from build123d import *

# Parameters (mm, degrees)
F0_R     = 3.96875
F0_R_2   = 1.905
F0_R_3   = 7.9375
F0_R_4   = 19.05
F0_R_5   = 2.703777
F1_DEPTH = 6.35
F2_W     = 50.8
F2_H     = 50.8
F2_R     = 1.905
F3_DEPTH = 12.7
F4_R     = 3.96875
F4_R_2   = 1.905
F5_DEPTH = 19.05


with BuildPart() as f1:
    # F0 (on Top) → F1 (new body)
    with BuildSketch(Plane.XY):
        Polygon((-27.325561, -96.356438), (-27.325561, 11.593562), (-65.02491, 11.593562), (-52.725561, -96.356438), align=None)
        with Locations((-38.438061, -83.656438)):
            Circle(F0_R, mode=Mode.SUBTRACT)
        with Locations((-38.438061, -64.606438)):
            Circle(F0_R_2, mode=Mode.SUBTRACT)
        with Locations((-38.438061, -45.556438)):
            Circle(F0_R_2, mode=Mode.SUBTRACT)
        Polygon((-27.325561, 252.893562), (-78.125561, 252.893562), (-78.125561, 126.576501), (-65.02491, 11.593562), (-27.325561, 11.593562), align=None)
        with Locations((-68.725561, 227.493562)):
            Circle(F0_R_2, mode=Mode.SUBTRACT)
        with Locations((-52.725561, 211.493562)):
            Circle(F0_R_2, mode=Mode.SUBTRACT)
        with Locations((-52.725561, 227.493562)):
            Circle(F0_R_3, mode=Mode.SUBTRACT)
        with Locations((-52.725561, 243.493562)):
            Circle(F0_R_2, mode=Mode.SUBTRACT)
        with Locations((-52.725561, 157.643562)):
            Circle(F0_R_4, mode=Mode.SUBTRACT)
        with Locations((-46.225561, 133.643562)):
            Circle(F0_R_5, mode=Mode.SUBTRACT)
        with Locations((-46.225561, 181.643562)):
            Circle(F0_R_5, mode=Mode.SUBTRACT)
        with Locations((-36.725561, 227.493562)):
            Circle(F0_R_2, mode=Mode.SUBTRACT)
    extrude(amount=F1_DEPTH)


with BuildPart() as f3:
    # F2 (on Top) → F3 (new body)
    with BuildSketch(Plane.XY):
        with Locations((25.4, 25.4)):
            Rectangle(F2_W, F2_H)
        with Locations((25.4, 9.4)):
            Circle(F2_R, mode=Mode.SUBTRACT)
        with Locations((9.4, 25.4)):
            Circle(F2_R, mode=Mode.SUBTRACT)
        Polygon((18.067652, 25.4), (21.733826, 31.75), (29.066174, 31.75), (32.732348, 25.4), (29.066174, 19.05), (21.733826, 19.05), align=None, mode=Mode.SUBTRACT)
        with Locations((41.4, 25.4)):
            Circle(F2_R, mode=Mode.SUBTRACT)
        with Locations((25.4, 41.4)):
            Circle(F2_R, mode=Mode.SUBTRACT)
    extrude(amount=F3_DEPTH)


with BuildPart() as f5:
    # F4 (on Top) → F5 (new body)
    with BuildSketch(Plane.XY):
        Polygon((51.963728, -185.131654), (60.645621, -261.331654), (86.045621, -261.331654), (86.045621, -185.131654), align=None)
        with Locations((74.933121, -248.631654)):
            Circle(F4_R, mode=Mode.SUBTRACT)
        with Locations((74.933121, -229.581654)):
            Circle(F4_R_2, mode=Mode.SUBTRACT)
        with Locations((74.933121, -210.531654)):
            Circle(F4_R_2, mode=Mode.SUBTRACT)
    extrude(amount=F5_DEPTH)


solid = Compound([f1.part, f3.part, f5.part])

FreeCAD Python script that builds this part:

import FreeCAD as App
import Part
import Sketcher

V = App.Vector
Q = App.Units.Quantity


def add_polygon(sketch, points):
    """Adds a closed chain of lines whose ends are joined by coincident constraints."""
    first, n = sketch.GeometryCount, len(points)
    for a, b in zip(points, points[1:] + points[:1]):
        sketch.addGeometry(Part.LineSegment(App.Vector(*a, 0), App.Vector(*b, 0)), False)
    for i in range(n):
        sketch.addConstraint(Sketcher.Constraint("Coincident", first + i, 2, first + (i + 1) % n, 1))

doc = App.newDocument("Part")
params = doc.addObject("Spreadsheet::Sheet", "Params")
for row, (alias, value) in enumerate([
    ("sketch1_diameter", "1.5 in"),
    ("sketch1_diameter2", "0.15 in"),
    ("sketch1_width", "2 in"),
    ("sketch1_width2", "1 in"),
    ("sketch1_diameter3", "0.3125 in"),
    ("pad1_length", "0.25 in"),
    ("sketch2_diameter", "0.15 in"),
    ("sketch2_width", "2 in"),
    ("pad2_length", "0.5 in"),
    ("sketch3_diameter", "0.15 in"),
    ("sketch3_width", "1 in"),
    ("sketch3_height", "3 in"),
    ("sketch3_diameter2", "0.3125 in"),
    ("pad3_length", "0.75 in"),
], start=1):
    params.set(f"A{row}", alias)
    params.set(f"B{row}", "=" + value)
    params.setAlias(f"B{row}", alias)

body = doc.addObject("PartDesign::Body", "Body")

sketch1 = body.newObject("Sketcher::SketchObject", "Sketch")
sketch1.AttachmentSupport = (doc.getObject("XY_Plane"), [""])
sketch1.MapMode = "FlatFace"
add_polygon(sketch1, [(-27.3, -96.4), (-27.3, 252.9), (-78.1, 252.9), (-78.1, 126.6), (-65, 11.6), (-52.7, -96.4)])
sketch1.addGeometry(Part.Circle(V(-38.4, -83.7, 0), V(0, 0, 1), 4), False)
sketch1.addGeometry(Part.Circle(V(-38.4, -64.6, 0), V(0, 0, 1), 1.9), False)
sketch1.addGeometry(Part.Circle(V(-38.4, -45.6, 0), V(0, 0, 1), 1.9), False)
sketch1.addGeometry(Part.Circle(V(-68.7, 227.5, 0), V(0, 0, 1), 1.9), False)
sketch1.addGeometry(Part.Circle(V(-52.7, 157.6, 0), V(0, 0, 1), 19.1), False)
sketch1.addGeometry(Part.Circle(V(-46.2, 133.6, 0), V(0, 0, 1), 2.7), False)
sketch1.addGeometry(Part.Circle(V(-46.2, 181.6, 0), V(0, 0, 1), 2.7), False)
sketch1.addGeometry(Part.Circle(V(-52.7, 211.5, 0), V(0, 0, 1), 1.9), False)
sketch1.addGeometry(Part.Circle(V(-52.7, 227.5, 0), V(0, 0, 1), 7.9), False)
sketch1.addGeometry(Part.Circle(V(-52.7, 243.5, 0), V(0, 0, 1), 1.9), False)
sketch1.addGeometry(Part.Circle(V(-36.7, 227.5, 0), V(0, 0, 1), 1.9), False)
sketch1.addConstraint(Sketcher.Constraint("Vertical", 0))
sketch1.addConstraint(Sketcher.Constraint("Horizontal", 1))
sketch1.addConstraint(Sketcher.Constraint("Vertical", 2))
sketch1.addConstraint(Sketcher.Constraint("Horizontal", 5))
sketch1.addConstraint(Sketcher.Constraint("Equal", 7, 8))
sketch1.addConstraint(Sketcher.Constraint("Equal", 8, 9))
sketch1.addConstraint(Sketcher.Constraint("Equal", 11, 12))
sketch1.addConstraint(Sketcher.Constraint("Equal", 9, 13))
sketch1.addConstraint(Sketcher.Constraint("Equal", 13, 15))
sketch1.addConstraint(Sketcher.Constraint("Equal", 15, 16))
sketch1.addConstraint(Sketcher.Constraint("Parallel", 3, 4))
sketch1.addConstraint(Sketcher.Constraint("Horizontal", 9, 3, 14, 3))
sketch1.addConstraint(Sketcher.Constraint("Horizontal", 14, 3, 16, 3))
sketch1.addConstraint(Sketcher.Constraint("Vertical", 6, 3, 7, 3))
sketch1.addConstraint(Sketcher.Constraint("Vertical", 7, 3, 8, 3))
sketch1.addConstraint(Sketcher.Constraint("Vertical", 11, 3, 12, 3))
sketch1.addConstraint(Sketcher.Constraint("Vertical", 10, 3, 13, 3))
sketch1.addConstraint(Sketcher.Constraint("Vertical", 13, 3, 14, 3))
sketch1.addConstraint(Sketcher.Constraint("Vertical", 14, 3, 15, 3))
sketch1.addConstraint(Sketcher.Constraint("Vertical", 15, 3, 4, 2))
sketch1.addConstraint(Sketcher.Constraint("Diameter", 10, Q("1.5 in")))
sketch1.addConstraint(Sketcher.Constraint("Diameter", 7, Q("0.15 in")))
sketch1.addConstraint(Sketcher.Constraint("DistanceX", 1, 2, 1, 1, Q("2 in")))
sketch1.addConstraint(Sketcher.Constraint("DistanceX", 5, 1, 5, 2, Q("1 in")))
sketch1.addConstraint(Sketcher.Constraint("Diameter", 6, Q("0.3125 in")))
sketch1.addConstraint(Sketcher.Constraint("Diameter", 14, Q("0.625 in")))
sketch1.addConstraint(Sketcher.Constraint("DistanceY", 8, 3, 10, 3, Q("8 in")))
sketch1.addConstraint(Sketcher.Constraint("DistanceY", 16, 3, 0, 2, Q("1 in")))
sketch1.addConstraint(Sketcher.Constraint("DistanceY", 7, 3, 3, 2, Q("3 in")))
sketch1.addConstraint(Sketcher.Constraint("DistanceY", 4, 2, 8, 3, Q("2 in")))
sketch1.addConstraint(Sketcher.Constraint("DistanceY", 0, 1, 0, 2, Q("13.75 in")))
sketch1.addConstraint(Sketcher.Constraint("Angle", 3, Q("-83.5 deg")))
sketch1.addConstraint(Sketcher.Constraint("DistanceY", 6, 3, 8, 3, Q("1.5 in")))
sketch1.addConstraint(Sketcher.Constraint("DistanceY", 7, 3, 9, 3, Q("11.5 in")))
sketch1.addConstraint(Sketcher.Constraint("DistanceX", 10, 3, 8, 3, Q("0.5625 in")))
sketch1.addConstraint(Sketcher.Constraint("Diameter", 11, 5.407554))
sketch1.addConstraint(Sketcher.Constraint("DistanceY", -1, 1, 2, 2, 126.576501))
sketch1.addConstraint(Sketcher.Constraint("DistanceX", 9, 3, 8, 3, 30.2875))
sketch1.addConstraint(Sketcher.Constraint("DistanceX", 10, 3, 11, 3, 6.5))
sketch1.addConstraint(Sketcher.Constraint("DistanceY", 11, 3, 10, 3, 24.0))
sketch1.addConstraint(Sketcher.Constraint("DistanceY", 10, 3, 12, 3, 24.0))
sketch1.addConstraint(Sketcher.Constraint("DistanceY", 13, 3, 9, 3, 16.0))
sketch1.addConstraint(Sketcher.Constraint("DistanceY", 14, 3, 15, 3, 16.0))
sketch1.addConstraint(Sketcher.Constraint("DistanceX", 14, 3, 16, 3, 16.0))
sketch1.addConstraint(Sketcher.Constraint("DistanceX", 6, 3, -1, 1, 38.438061))
sketch1.setExpression("Constraints[26]", "Params.sketch1_diameter")
sketch1.setExpression("Constraints[27]", "Params.sketch1_diameter2")
sketch1.setExpression("Constraints[28]", "Params.sketch1_width")
sketch1.setExpression("Constraints[29]", "Params.sketch1_width2")
sketch1.setExpression("Constraints[30]", "Params.sketch1_diameter3")
pad1 = body.newObject("PartDesign::Pad", "Pad")
pad1.Profile = sketch1
pad1.setExpression("Length", "Params.pad1_length")
body2 = doc.addObject("PartDesign::Body", "Body001")

sketch2 = body2.newObject("Sketcher::SketchObject", "Sketch001")
sketch2.AttachmentSupport = (doc.getObject("XY_Plane001"), [""])
sketch2.MapMode = "FlatFace"
add_polygon(sketch2, [(0, 50.8), (0, 0), (50.8, 0), (50.8, 50.8)])
sketch2.addGeometry(Part.Circle(V(25.4, 9.4, 0), V(0, 0, 1), 1.9), False)
sketch2.addGeometry(Part.Circle(V(9.4, 25.4, 0), V(0, 0, 1), 1.9), False)
sketch2.addGeometry(Part.Circle(V(41.4, 25.4, 0), V(0, 0, 1), 1.9), False)
sketch2.addGeometry(Part.Circle(V(25.4, 41.4, 0), V(0, 0, 1), 1.9), False)
add_polygon(sketch2, [(21.7, 19.1), (18.1, 25.4), (21.7, 31.8), (29.1, 31.8), (32.7, 25.4), (29.1, 19.1)])
sketch2.addConstraint(Sketcher.Constraint("Vertical", 0))
sketch2.addConstraint(Sketcher.Constraint("Horizontal", 1))
sketch2.addConstraint(Sketcher.Constraint("Vertical", 2))
sketch2.addConstraint(Sketcher.Constraint("Horizontal", 3))
sketch2.addConstraint(Sketcher.Constraint("Horizontal", 10))
sketch2.addConstraint(Sketcher.Constraint("Horizontal", 13))
sketch2.addConstraint(Sketcher.Constraint("Coincident", 0, 2, -1, 1))
sketch2.addConstraint(Sketcher.Constraint("Equal", 4, 5))
sketch2.addConstraint(Sketcher.Constraint("Equal", 5, 6))
sketch2.addConstraint(Sketcher.Constraint("Equal", 6, 7))
sketch2.addConstraint(Sketcher.Constraint("Parallel", 8, 11))
sketch2.addConstraint(Sketcher.Constraint("Parallel", 9, 12))
sketch2.addConstraint(Sketcher.Constraint("Horizontal", 5, 3, 6, 3))
sketch2.addConstraint(Sketcher.Constraint("Horizontal", 6, 3, 8, 2))
sketch2.addConstraint(Sketcher.Constraint("Horizontal", 8, 2, 11, 2))
sketch2.addConstraint(Sketcher.Constraint("Vertical", 4, 3, 7, 3))
sketch2.addConstraint(Sketcher.Constraint("Vertical", 10, 2, 12, 2))
sketch2.addConstraint(Sketcher.Constraint("Vertical", 9, 2, 13, 2))
sketch2.addConstraint(Sketcher.Constraint("Equal", 3, 0))
sketch2.addConstraint(Sketcher.Constraint("Diameter", 4, Q("0.15 in")))
sketch2.addConstraint(Sketcher.Constraint("DistanceX", 1, 1, 1, 2, Q("2 in")))
sketch2.addConstraint(Sketcher.Constraint("DistanceX", -1, 1, 4, 3, Q("1 in")))
sketch2.addConstraint(Sketcher.Constraint("DistanceY", -1, 1, 5, 3, Q("1 in")))
sketch2.addConstraint(Sketcher.Constraint("Angle", 8, Q("119.999999 deg")))
sketch2.addConstraint(Sketcher.Constraint("DistanceY", 12, 2, 10, 2, Q("0.5 in")))
sketch2.addConstraint(Sketcher.Constraint("DistanceY", -1, 1, 4, 3, 9.4))
sketch2.addConstraint(Sketcher.Constraint("DistanceX", -1, 1, 5, 3, 9.4))
sketch2.addConstraint(Sketcher.Constraint("DistanceX", -1, 1, 6, 3, 41.4))
sketch2.addConstraint(Sketcher.Constraint("DistanceY", -1, 1, 7, 3, 41.4))
sketch2.addConstraint(Sketcher.Constraint("DistanceX", 10, 1, 10, 2, 7.332348))
sketch2.addConstraint(Sketcher.Constraint("DistanceX", -1, 1, 8, 2, 18.067652))
sketch2.setExpression("Constraints[29]", "Params.sketch2_diameter")
sketch2.setExpression("Constraints[30]", "Params.sketch2_width")
pad2 = body2.newObject("PartDesign::Pad", "Pad001")
pad2.Profile = sketch2
pad2.setExpression("Length", "Params.pad2_length")
body3 = doc.addObject("PartDesign::Body", "Body002")

sketch3 = body3.newObject("Sketcher::SketchObject", "Sketch002")
sketch3.AttachmentSupport = (doc.getObject("XY_Plane002"), [""])
sketch3.MapMode = "FlatFace"
add_polygon(sketch3, [(52, -185.1), (60.6, -261.3), (86, -261.3), (86, -185.1)])
sketch3.addGeometry(Part.Circle(V(74.9, -248.6, 0), V(0, 0, 1), 4), False)
sketch3.addGeometry(Part.Circle(V(74.9, -229.6, 0), V(0, 0, 1), 1.9), False)
sketch3.addGeometry(Part.Circle(V(74.9, -210.5, 0), V(0, 0, 1), 1.9), False)
sketch3.addConstraint(Sketcher.Constraint("Horizontal", 1))
sketch3.addConstraint(Sketcher.Constraint("Vertical", 2))
sketch3.addConstraint(Sketcher.Constraint("Horizontal", 3))
sketch3.addConstraint(Sketcher.Constraint("Equal", 5, 6))
sketch3.addConstraint(Sketcher.Constraint("Vertical", 4, 3, 5, 3))
sketch3.addConstraint(Sketcher.Constraint("Vertical", 5, 3, 6, 3))
sketch3.addConstraint(Sketcher.Constraint("Diameter", 5, Q("0.15 in")))
sketch3.addConstraint(Sketcher.Constraint("DistanceX", 1, 1, 1, 2, Q("1 in")))
sketch3.addConstraint(Sketcher.Constraint("DistanceY", 2, 1, 2, 2, Q("3 in")))
sketch3.addConstraint(Sketcher.Constraint("Diameter", 4, Q("0.3125 in")))
sketch3.addConstraint(Sketcher.Constraint("DistanceY", 0, 2, 6, 3, Q("2 in")))
sketch3.addConstraint(Sketcher.Constraint("Angle", 0, Q("-83.5 deg")))
sketch3.addConstraint(Sketcher.Constraint("DistanceY", 4, 3, 6, 3, Q("1.5 in")))
sketch3.addConstraint(Sketcher.Constraint("DistanceY", 4, 3, 5, 3, Q("0.75 in")))
sketch3.addConstraint(Sketcher.Constraint("DistanceX", 0, 2, 4, 3, Q("0.5625 in")))
sketch3.addConstraint(Sketcher.Constraint("DistanceX", -1, 1, 4, 3, 74.933121))
sketch3.addConstraint(Sketcher.Constraint("DistanceY", 4, 3, -1, 1, 248.631654))
sketch3.setExpression("Constraints[10]", "Params.sketch3_diameter")
sketch3.setExpression("Constraints[11]", "Params.sketch3_width")
sketch3.setExpression("Constraints[12]", "Params.sketch3_height")
sketch3.setExpression("Constraints[13]", "Params.sketch3_diameter2")
pad3 = body3.newObject("PartDesign::Pad", "Pad002")
pad3.Profile = sketch3
pad3.setExpression("Length", "Params.pad3_length")

doc.recompute()
